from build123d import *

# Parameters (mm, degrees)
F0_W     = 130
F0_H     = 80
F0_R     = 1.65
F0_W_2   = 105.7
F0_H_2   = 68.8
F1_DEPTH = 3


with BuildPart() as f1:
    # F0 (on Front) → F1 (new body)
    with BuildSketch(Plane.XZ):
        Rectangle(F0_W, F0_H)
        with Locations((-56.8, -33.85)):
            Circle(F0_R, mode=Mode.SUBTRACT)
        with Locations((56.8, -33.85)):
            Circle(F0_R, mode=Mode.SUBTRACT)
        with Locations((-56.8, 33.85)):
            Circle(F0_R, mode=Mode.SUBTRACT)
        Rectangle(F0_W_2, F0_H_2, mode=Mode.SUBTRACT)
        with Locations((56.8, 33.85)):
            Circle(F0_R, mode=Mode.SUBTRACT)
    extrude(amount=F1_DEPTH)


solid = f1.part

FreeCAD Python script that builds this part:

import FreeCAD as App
import Part
import Sketcher
from FreeCAD import Vector
Q = App.Units.Quantity


def add_polygon(sketch, points):
    """Adds a closed chain of lines whose ends are joined by coincident constraints."""
    first, n = sketch.GeometryCount, len(points)
    for a, b in zip(points, points[1:] + points[:1]):
        sketch.addGeometry(Part.LineSegment(App.Vector(*a, 0), App.Vector(*b, 0)), False)
    for i in range(n):
        sketch.addConstraint(Sketcher.Constraint("Coincident", first + i, 2, first + (i + 1) % n, 1))

doc = App.newDocument("Part")
params = doc.addObject("Spreadsheet::Sheet", "Params")
for row, (alias, value) in enumerate([
    ("sketch1_diameter", "3.3 mm"),
    ("sketch1_width", "130 mm"),
    ("sketch1_height", "80 mm"),
    ("sketch1_width2", "105.7 mm"),
    ("sketch1_height2", "68.8 mm"),
    ("pad1_length", "3 mm"),
], start=1):
    params.set(f"A{row}", alias)
    params.set(f"B{row}", "=" + value)
    params.setAlias(f"B{row}", alias)

body = doc.addObject("PartDesign::Body", "Body")

# Sketch on XZ plane
sketch1 = body.newObject("Sketcher::SketchObject", "Sketch")
sketch1.AttachmentSupport = (doc.getObject("XZ_Plane"), [""])
sketch1.MapMode = "FlatFace"
add_polygon(sketch1, [(-65, 40), (-65, -40), (65, -40), (65, 40)])  # lines 0-3
sketch1.addGeometry(Part.Circle(Vector(-56.8, -33.9, 0), Vector(0, 0, 1), 1.6), False)  # 4
sketch1.addGeometry(Part.Circle(Vector(56.8, -33.9, 0), Vector(0, 0, 1), 1.6), False)  # 5
add_polygon(sketch1, [(52.9, -34.4), (-52.9, -34.4), (-52.9, 34.4), (52.9, 34.4)])  # lines 6-9
sketch1.addGeometry(Part.Circle(Vector(-56.8, 33.9, 0), Vector(0, 0, 1), 1.6), False)  # 10
sketch1.addGeometry(Part.Circle(Vector(56.8, 33.9, 0), Vector(0, 0, 1), 1.6), False)  # 11
sketch1.addConstraint(Sketcher.Constraint("Vertical", 0))
sketch1.addConstraint(Sketcher.Constraint("Horizontal", 1))
sketch1.addConstraint(Sketcher.Constraint("Vertical", 2))
sketch1.addConstraint(Sketcher.Constraint("Horizontal", 3))
sketch1.addConstraint(Sketcher.Constraint("Horizontal", 6))
sketch1.addConstraint(Sketcher.Constraint("Vertical", 7))
sketch1.addConstraint(Sketcher.Constraint("Horizontal", 8))
sketch1.addConstraint(Sketcher.Constraint("Vertical", 9))
sketch1.addConstraint(Sketcher.Constraint("Equal", 4, 5))
sketch1.addConstraint(Sketcher.Constraint("Equal", 5, 10))
sketch1.addConstraint(Sketcher.Constraint("Equal", 10, 11))
sketch1.addConstraint(Sketcher.Constraint("Symmetric", 5, 3, 10, 3, -1, 1))
sketch1.addConstraint(Sketcher.Constraint("Symmetric", 4, 3, 11, 3, -1, 1))
sketch1.addConstraint(Sketcher.Constraint("Symmetric", 0, 2, 2, 2, -1, 1))
sketch1.addConstraint(Sketcher.Constraint("Symmetric", 6, 2, 8, 2, -1, 1))
sketch1.addConstraint(Sketcher.Constraint("Symmetric", 4, 3, 5, 3, -2))
sketch1.addConstraint(Sketcher.Constraint("Diameter", 4, Q("3.3 mm")))
sketch1.addConstraint(Sketcher.Constraint("DistanceX", 1, 1, 1, 2, Q("130 mm")))
sketch1.addConstraint(Sketcher.Constraint("DistanceY", 0, 2, 0, 1, Q("80 mm")))
sketch1.addConstraint(Sketcher.Constraint("DistanceX", 6, 2, 6, 1, Q("105.7 mm")))
sketch1.addConstraint(Sketcher.Constraint("DistanceY", 7, 1, 7, 2, Q("68.8 mm")))
sketch1.addConstraint(Sketcher.Constraint("DistanceX", 4, 3, -1, 1, Q("56.8 mm")))
sketch1.addConstraint(Sketcher.Constraint("DistanceY", 4, 3, 10, 3, Q("67.7 mm")))
sketch1.setExpression("Constraints[24]", "Params.sketch1_diameter")
sketch1.setExpression("Constraints[25]", "Params.sketch1_width")
sketch1.setExpression("Constraints[26]", "Params.sketch1_height")
sketch1.setExpression("Constraints[27]", "Params.sketch1_width2")
sketch1.setExpression("Constraints[28]", "Params.sketch1_height2")
pad1 = body.newObject("PartDesign::Pad", "Pad")
pad1.Profile = sketch1
pad1.setExpression("Length", "Params.pad1_length")

doc.recompute()
